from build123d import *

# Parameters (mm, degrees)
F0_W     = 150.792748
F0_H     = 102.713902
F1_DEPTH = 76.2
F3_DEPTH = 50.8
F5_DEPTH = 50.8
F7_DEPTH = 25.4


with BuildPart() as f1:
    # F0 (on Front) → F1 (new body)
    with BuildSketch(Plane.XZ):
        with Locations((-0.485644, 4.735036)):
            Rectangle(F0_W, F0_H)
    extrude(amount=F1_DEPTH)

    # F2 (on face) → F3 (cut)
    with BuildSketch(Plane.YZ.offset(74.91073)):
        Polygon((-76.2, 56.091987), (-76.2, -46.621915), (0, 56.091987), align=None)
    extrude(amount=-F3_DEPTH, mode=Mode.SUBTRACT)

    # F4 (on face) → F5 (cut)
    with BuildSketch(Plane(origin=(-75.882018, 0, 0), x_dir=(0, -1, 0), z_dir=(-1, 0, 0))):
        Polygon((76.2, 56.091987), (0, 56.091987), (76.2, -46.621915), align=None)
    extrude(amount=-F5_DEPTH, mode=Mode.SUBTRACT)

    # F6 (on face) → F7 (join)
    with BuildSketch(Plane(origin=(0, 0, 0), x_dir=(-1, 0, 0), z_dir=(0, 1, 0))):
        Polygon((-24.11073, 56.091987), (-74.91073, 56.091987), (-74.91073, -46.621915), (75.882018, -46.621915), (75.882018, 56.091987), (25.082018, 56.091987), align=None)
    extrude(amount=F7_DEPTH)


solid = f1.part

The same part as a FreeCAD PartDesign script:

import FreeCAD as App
import Part
import Sketcher
from FreeCAD import Vector
Q = App.Units.Quantity

doc = App.newDocument("Part")
params = doc.addObject("Spreadsheet::Sheet", "Params")
for row, (alias, value) in enumerate([
    ("pad1_length", "3 in"),
    ("sketch2_width", "3 in"),
    ("pocket1_length", "2 in"),
    ("sketch3_width", "3 in"),
    ("pocket2_length", "2 in"),
    ("pad2_length", "1 in"),
], start=1):
    params.set(f"A{row}", alias)
    params.set(f"B{row}", "=" + value)
    params.setAlias(f"B{row}", alias)

body = doc.addObject("PartDesign::Body", "Body")

sketch1 = body.newObject("Sketcher::SketchObject", "Sketch")
sketch1.AttachmentSupport = (doc.getObject("XZ_Plane"), [""])
sketch1.MapMode = "FlatFace"
sketch1.addGeometry([
    Part.LineSegment(Vector(-76, 56, 0), Vector(-76, -47, 0)),
    Part.LineSegment(Vector(-76, -47, 0), Vector(75, -47, 0)),
    Part.LineSegment(Vector(75, -47, 0), Vector(75, 56, 0)),
    Part.LineSegment(Vector(75, 56, 0), Vector(-76, 56, 0)),
], False)
sketch1.addConstraint([
    Sketcher.Constraint("Coincident", 0, 2, 1, 1),
    Sketcher.Constraint("Coincident", 1, 2, 2, 1),
    Sketcher.Constraint("Coincident", 2, 2, 3, 1),
    Sketcher.Constraint("Coincident", 3, 2, 0, 1),
    Sketcher.Constraint("Vertical", 0),
    Sketcher.Constraint("Horizontal", 1),
    Sketcher.Constraint("Vertical", 2),
    Sketcher.Constraint("Horizontal", 3),
    Sketcher.Constraint("DistanceX", 1, 1, 1, 2, Q("150.792748 mm")),
    Sketcher.Constraint("DistanceY", 0, 2, 0, 1, Q("102.713902 mm")),
    Sketcher.Constraint("DistanceX", 0, 2, -1, 1, Q("75.882018 mm")),
    Sketcher.Constraint("DistanceY", 0, 2, -1, 1, Q("46.621915 mm")),
])
pad1 = body.newObject("PartDesign::Pad", "Pad")
pad1.Profile = sketch1
pad1.setExpression("Length", "Params.pad1_length")

sketch2 = body.newObject("Sketcher::SketchObject", "Sketch001")
sketch2.AttachmentSupport = (doc.getObject("YZ_Plane"), [""])
sketch2.MapMode = "FlatFace"
sketch2.AttachmentOffset = App.Placement(Vector(0, 0, 74.91073), App.Rotation())
sketch2.addGeometry([
    Part.LineSegment(Vector(-76, 56, 0), Vector(-76, -47, 0)),
    Part.LineSegment(Vector(-76, -47, 0), Vector(0, 56, 0)),
    Part.LineSegment(Vector(0, 56, 0), Vector(-76, 56, 0)),
], False)
sketch2.addConstraint([
    Sketcher.Constraint("Coincident", 0, 2, 1, 1),
    Sketcher.Constraint("Coincident", 1, 2, 2, 1),
    Sketcher.Constraint("Coincident", 2, 2, 0, 1),
    Sketcher.Constraint("Vertical", 0),
    Sketcher.Constraint("Horizontal", 2),
    Sketcher.Constraint("PointOnObject", 1, 2, -2),
    Sketcher.Constraint("DistanceX", 2, 2, 2, 1, Q("3 in")),
    Sketcher.Constraint("DistanceY", 0, 2, 0, 1, Q("102.713902 mm")),
    Sketcher.Constraint("DistanceY", 0, 2, -1, 1, Q("46.621915 mm")),
])
sketch2.setExpression("Constraints[6]", "Params.sketch2_width")
pocket1 = body.newObject("PartDesign::Pocket", "Pocket")
pocket1.Profile = sketch2
pocket1.setExpression("Length", "Params.pocket1_length")

sketch3 = body.newObject("Sketcher::SketchObject", "Sketch002")
sketch3.AttachmentSupport = (doc.getObject("YZ_Plane"), [""])
sketch3.MapMode = "FlatFace"
sketch3.AttachmentOffset = App.Placement(Vector(0, 0, -75.882018), App.Rotation())
sketch3.addGeometry([
    Part.LineSegment(Vector(-76, 56, 0), Vector(0, 56, 0)),
    Part.LineSegment(Vector(0, 56, 0), Vector(-76, -47, 0)),
    Part.LineSegment(Vector(-76, -47, 0), Vector(-76, 56, 0)),
], False)
sketch3.addConstraint([
    Sketcher.Constraint("Coincident", 0, 2, 1, 1),
    Sketcher.Constraint("Coincident", 1, 2, 2, 1),
    Sketcher.Constraint("Coincident", 2, 2, 0, 1),
    Sketcher.Constraint("Horizontal", 0),
    Sketcher.Constraint("Vertical", 2),
    Sketcher.Constraint("PointOnObject", 0, 2, -2),
    Sketcher.Constraint("DistanceX", 0, 1, 0, 2, Q("3 in")),
    Sketcher.Constraint("DistanceY", 2, 1, 2, 2, Q("102.713902 mm")),
    Sketcher.Constraint("DistanceY", -1, 1, 0, 2, Q("56.091987 mm")),
])
sketch3.setExpression("Constraints[6]", "Params.sketch3_width")
pocket2 = body.newObject("PartDesign::Pocket", "Pocket001")
pocket2.Profile = sketch3
pocket2.setExpression("Length", "Params.pocket2_length")
pocket2.Reversed = True

sketch4 = body.newObject("Sketcher::SketchObject", "Sketch003")
sketch4.AttachmentSupport = (doc.getObject("XZ_Plane"), [""])
sketch4.MapMode = "FlatFace"
sketch4.addGeometry([
    Part.LineSegment(Vector(75, 56, 0), Vector(75, -47, 0)),
    Part.LineSegment(Vector(75, -47, 0), Vector(-76, -47, 0)),
    Part.LineSegment(Vector(-76, -47, 0), Vector(-76, 56, 0)),
    Part.LineSegment(Vector(-76, 56, 0), Vector(75, 56, 0)),
], False)
sketch4.addConstraint([
    Sketcher.Constraint("Coincident", 0, 2, 1, 1),
    Sketcher.Constraint("Coincident", 1, 2, 2, 1),
    Sketcher.Constraint("Coincident", 2, 2, 3, 1),
    Sketcher.Constraint("Coincident", 3, 2, 0, 1),
    Sketcher.Constraint("Vertical", 0),
    Sketcher.Constraint("Horizontal", 1),
    Sketcher.Constraint("Vertical", 2),
    Sketcher.Constraint("Horizontal", 3),
    Sketcher.Constraint("DistanceX", 1, 2, 1, 1, Q("150.792748 mm")),
    Sketcher.Constraint("DistanceY", 0, 2, 0, 1, Q("102.713902 mm")),
    Sketcher.Constraint("DistanceX", -1, 1, 0, 2, Q("74.91073 mm")),
    Sketcher.Constraint("DistanceY", 0, 2, -1, 1, Q("46.621915 mm")),
])
pad2 = body.newObject("PartDesign::Pad", "Pad001")
pad2.Profile = sketch4
pad2.setExpression("Length", "Params.pad2_length")
pad2.Reversed = True

doc.recompute()
